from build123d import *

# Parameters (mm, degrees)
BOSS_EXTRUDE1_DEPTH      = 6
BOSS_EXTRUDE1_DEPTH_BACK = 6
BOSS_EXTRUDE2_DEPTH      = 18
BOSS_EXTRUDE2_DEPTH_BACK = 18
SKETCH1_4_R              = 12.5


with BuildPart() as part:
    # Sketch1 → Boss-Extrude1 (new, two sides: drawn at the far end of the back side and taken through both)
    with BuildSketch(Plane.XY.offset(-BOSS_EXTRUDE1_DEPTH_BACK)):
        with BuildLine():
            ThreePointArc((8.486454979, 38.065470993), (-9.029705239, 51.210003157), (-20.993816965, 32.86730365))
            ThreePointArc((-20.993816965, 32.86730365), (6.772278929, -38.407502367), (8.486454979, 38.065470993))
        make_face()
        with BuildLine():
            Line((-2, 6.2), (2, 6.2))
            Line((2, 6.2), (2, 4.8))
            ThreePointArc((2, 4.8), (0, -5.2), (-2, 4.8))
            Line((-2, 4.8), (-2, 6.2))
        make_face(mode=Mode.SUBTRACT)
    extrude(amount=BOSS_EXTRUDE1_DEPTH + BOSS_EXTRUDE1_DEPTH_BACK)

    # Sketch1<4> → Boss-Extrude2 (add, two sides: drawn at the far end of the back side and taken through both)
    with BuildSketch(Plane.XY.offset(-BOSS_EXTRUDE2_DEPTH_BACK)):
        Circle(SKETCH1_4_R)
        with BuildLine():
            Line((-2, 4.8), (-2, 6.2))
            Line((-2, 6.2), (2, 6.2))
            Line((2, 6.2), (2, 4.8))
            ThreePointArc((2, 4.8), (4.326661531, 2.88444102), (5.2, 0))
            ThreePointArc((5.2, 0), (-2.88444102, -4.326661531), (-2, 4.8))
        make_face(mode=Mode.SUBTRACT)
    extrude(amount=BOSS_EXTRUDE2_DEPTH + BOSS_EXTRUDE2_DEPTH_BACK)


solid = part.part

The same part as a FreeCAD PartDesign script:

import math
import FreeCAD as App
import Part
import Sketcher

doc = App.newDocument("Part")
body = doc.addObject("PartDesign::Body", "Body")

# Sketch on XY plane
sketch1 = body.newObject("Sketcher::SketchObject", "Sketch")
sketch1.AttachmentSupport = (doc.getObject("XY_Plane"), [""])
sketch1.MapMode = "FlatFace"
sketch1.addGeometry(Part.ArcOfCircle(Part.Circle(App.Vector(-6.4, 36.4, 0), App.Vector(0, 0, 1), 15), math.radians(6), math.radians(194)), False)
sketch1.addGeometry(Part.ArcOfCircle(Part.Circle(App.Vector(0, 0, 0), App.Vector(0, 0, 1), 39), math.radians(123), math.radians(437)), False)
sketch1.addGeometry(Part.LineSegment(App.Vector(-2, 4.8, 0), App.Vector(-2, 6.2, 0)), False)
sketch1.addGeometry(Part.LineSegment(App.Vector(-2, 6.2, 0), App.Vector(2, 6.2, 0)), False)
sketch1.addGeometry(Part.LineSegment(App.Vector(2, 6.2, 0), App.Vector(2, 4.8, 0)), False)
sketch1.addGeometry(Part.ArcOfCircle(Part.Circle(App.Vector(0, 0, 0), App.Vector(0, 0, 1), 5.2), math.radians(113), math.radians(427)), False)
sketch1.addConstraint(Sketcher.Constraint("Coincident", 0, 1, 1, 2))
sketch1.addConstraint(Sketcher.Constraint("Coincident", 1, 1, 0, 2))
sketch1.addConstraint(Sketcher.Constraint("Coincident", 2, 2, 3, 1))
sketch1.addConstraint(Sketcher.Constraint("Coincident", 3, 2, 4, 1))
sketch1.addConstraint(Sketcher.Constraint("Coincident", 4, 2, 5, 2))
sketch1.addConstraint(Sketcher.Constraint("Coincident", 5, 1, 2, 1))
sketch1.addConstraint(Sketcher.Constraint("Vertical", 2))
sketch1.addConstraint(Sketcher.Constraint("Horizontal", 3))
sketch1.addConstraint(Sketcher.Constraint("Vertical", 4))
sketch1.addConstraint(Sketcher.Constraint("Coincident", 1, 3, -1, 1))
sketch1.addConstraint(Sketcher.Constraint("Coincident", 5, 3, -1, 1))
sketch1.addConstraint(Sketcher.Constraint("Horizontal", 4, 2, 5, 1))
sketch1.addConstraint(Sketcher.Constraint("Radius", 0, 15.0))
sketch1.addConstraint(Sketcher.Constraint("Radius", 1, 39.0))
sketch1.addConstraint(Sketcher.Constraint("Radius", 5, 5.2))
sketch1.addConstraint(Sketcher.Constraint("DistanceX", 3, 1, 3, 2, 4.0))
sketch1.addConstraint(Sketcher.Constraint("DistanceY", 2, 1, 2, 2, 1.4))
sketch1.addConstraint(Sketcher.Constraint("DistanceY", -1, 1, 0, 1, 38.065471))
sketch1.addConstraint(Sketcher.Constraint("DistanceX", 1, 1, 0, 1, 29.480272))
pad1 = body.newObject("PartDesign::Pad", "Pad")
pad1.Profile = sketch1
pad1.Type = "TwoLengths"
pad1.Length = 6
pad1.Length2 = 6

# Sketch on XY plane
sketch2 = body.newObject("Sketcher::SketchObject", "Sketch001")
sketch2.AttachmentSupport = (doc.getObject("XY_Plane"), [""])
sketch2.MapMode = "FlatFace"
sketch2.addGeometry(Part.Circle(App.Vector(0, 0, 0), App.Vector(0, 0, 1), 12.5), False)
sketch2.addGeometry(Part.ArcOfCircle(Part.Circle(App.Vector(0, 0, 0), App.Vector(0, 0, 1), 5.2), math.radians(113), math.radians(360)), False)
sketch2.addGeometry(Part.LineSegment(App.Vector(-2, 4.8, 0), App.Vector(-2, 6.2, 0)), False)
sketch2.addGeometry(Part.LineSegment(App.Vector(-2, 6.2, 0), App.Vector(2, 6.2, 0)), False)
sketch2.addGeometry(Part.LineSegment(App.Vector(2, 6.2, 0), App.Vector(2, 4.8, 0)), False)
sketch2.addGeometry(Part.ArcOfCircle(Part.Circle(App.Vector(0, 0, 0), App.Vector(0, 0, 1), 5.2), math.radians(0), math.radians(67)), False)
sketch2.addConstraint(Sketcher.Constraint("Coincident", 1, 1, 2, 1))
sketch2.addConstraint(Sketcher.Constraint("Coincident", 2, 2, 3, 1))
sketch2.addConstraint(Sketcher.Constraint("Coincident", 3, 2, 4, 1))
sketch2.addConstraint(Sketcher.Constraint("Coincident", 4, 2, 5, 2))
sketch2.addConstraint(Sketcher.Constraint("Tangent", 5, 1, 1, 2))
sketch2.addConstraint(Sketcher.Constraint("Vertical", 2))
sketch2.addConstraint(Sketcher.Constraint("Horizontal", 3))
sketch2.addConstraint(Sketcher.Constraint("Vertical", 4))
sketch2.addConstraint(Sketcher.Constraint("Coincident", 0, 3, -1, 1))
sketch2.addConstraint(Sketcher.Constraint("Coincident", 1, 3, -1, 1))
sketch2.addConstraint(Sketcher.Constraint("Equal", 1, 5))
sketch2.addConstraint(Sketcher.Constraint("PointOnObject", 5, 1, -1))
sketch2.addConstraint(Sketcher.Constraint("Horizontal", 1, 1, 4, 2))
sketch2.addConstraint(Sketcher.Constraint("Diameter", 0, 25.0))
sketch2.addConstraint(Sketcher.Constraint("Radius", 1, 5.2))
sketch2.addConstraint(Sketcher.Constraint("DistanceX", 3, 1, 3, 2, 4.0))
sketch2.addConstraint(Sketcher.Constraint("DistanceY", 2, 1, 2, 2, 1.4))
pad2 = body.newObject("PartDesign::Pad", "Pad001")
pad2.Profile = sketch2
pad2.Type = "TwoLengths"
pad2.Length = 18
pad2.Length2 = 18

doc.recompute()
